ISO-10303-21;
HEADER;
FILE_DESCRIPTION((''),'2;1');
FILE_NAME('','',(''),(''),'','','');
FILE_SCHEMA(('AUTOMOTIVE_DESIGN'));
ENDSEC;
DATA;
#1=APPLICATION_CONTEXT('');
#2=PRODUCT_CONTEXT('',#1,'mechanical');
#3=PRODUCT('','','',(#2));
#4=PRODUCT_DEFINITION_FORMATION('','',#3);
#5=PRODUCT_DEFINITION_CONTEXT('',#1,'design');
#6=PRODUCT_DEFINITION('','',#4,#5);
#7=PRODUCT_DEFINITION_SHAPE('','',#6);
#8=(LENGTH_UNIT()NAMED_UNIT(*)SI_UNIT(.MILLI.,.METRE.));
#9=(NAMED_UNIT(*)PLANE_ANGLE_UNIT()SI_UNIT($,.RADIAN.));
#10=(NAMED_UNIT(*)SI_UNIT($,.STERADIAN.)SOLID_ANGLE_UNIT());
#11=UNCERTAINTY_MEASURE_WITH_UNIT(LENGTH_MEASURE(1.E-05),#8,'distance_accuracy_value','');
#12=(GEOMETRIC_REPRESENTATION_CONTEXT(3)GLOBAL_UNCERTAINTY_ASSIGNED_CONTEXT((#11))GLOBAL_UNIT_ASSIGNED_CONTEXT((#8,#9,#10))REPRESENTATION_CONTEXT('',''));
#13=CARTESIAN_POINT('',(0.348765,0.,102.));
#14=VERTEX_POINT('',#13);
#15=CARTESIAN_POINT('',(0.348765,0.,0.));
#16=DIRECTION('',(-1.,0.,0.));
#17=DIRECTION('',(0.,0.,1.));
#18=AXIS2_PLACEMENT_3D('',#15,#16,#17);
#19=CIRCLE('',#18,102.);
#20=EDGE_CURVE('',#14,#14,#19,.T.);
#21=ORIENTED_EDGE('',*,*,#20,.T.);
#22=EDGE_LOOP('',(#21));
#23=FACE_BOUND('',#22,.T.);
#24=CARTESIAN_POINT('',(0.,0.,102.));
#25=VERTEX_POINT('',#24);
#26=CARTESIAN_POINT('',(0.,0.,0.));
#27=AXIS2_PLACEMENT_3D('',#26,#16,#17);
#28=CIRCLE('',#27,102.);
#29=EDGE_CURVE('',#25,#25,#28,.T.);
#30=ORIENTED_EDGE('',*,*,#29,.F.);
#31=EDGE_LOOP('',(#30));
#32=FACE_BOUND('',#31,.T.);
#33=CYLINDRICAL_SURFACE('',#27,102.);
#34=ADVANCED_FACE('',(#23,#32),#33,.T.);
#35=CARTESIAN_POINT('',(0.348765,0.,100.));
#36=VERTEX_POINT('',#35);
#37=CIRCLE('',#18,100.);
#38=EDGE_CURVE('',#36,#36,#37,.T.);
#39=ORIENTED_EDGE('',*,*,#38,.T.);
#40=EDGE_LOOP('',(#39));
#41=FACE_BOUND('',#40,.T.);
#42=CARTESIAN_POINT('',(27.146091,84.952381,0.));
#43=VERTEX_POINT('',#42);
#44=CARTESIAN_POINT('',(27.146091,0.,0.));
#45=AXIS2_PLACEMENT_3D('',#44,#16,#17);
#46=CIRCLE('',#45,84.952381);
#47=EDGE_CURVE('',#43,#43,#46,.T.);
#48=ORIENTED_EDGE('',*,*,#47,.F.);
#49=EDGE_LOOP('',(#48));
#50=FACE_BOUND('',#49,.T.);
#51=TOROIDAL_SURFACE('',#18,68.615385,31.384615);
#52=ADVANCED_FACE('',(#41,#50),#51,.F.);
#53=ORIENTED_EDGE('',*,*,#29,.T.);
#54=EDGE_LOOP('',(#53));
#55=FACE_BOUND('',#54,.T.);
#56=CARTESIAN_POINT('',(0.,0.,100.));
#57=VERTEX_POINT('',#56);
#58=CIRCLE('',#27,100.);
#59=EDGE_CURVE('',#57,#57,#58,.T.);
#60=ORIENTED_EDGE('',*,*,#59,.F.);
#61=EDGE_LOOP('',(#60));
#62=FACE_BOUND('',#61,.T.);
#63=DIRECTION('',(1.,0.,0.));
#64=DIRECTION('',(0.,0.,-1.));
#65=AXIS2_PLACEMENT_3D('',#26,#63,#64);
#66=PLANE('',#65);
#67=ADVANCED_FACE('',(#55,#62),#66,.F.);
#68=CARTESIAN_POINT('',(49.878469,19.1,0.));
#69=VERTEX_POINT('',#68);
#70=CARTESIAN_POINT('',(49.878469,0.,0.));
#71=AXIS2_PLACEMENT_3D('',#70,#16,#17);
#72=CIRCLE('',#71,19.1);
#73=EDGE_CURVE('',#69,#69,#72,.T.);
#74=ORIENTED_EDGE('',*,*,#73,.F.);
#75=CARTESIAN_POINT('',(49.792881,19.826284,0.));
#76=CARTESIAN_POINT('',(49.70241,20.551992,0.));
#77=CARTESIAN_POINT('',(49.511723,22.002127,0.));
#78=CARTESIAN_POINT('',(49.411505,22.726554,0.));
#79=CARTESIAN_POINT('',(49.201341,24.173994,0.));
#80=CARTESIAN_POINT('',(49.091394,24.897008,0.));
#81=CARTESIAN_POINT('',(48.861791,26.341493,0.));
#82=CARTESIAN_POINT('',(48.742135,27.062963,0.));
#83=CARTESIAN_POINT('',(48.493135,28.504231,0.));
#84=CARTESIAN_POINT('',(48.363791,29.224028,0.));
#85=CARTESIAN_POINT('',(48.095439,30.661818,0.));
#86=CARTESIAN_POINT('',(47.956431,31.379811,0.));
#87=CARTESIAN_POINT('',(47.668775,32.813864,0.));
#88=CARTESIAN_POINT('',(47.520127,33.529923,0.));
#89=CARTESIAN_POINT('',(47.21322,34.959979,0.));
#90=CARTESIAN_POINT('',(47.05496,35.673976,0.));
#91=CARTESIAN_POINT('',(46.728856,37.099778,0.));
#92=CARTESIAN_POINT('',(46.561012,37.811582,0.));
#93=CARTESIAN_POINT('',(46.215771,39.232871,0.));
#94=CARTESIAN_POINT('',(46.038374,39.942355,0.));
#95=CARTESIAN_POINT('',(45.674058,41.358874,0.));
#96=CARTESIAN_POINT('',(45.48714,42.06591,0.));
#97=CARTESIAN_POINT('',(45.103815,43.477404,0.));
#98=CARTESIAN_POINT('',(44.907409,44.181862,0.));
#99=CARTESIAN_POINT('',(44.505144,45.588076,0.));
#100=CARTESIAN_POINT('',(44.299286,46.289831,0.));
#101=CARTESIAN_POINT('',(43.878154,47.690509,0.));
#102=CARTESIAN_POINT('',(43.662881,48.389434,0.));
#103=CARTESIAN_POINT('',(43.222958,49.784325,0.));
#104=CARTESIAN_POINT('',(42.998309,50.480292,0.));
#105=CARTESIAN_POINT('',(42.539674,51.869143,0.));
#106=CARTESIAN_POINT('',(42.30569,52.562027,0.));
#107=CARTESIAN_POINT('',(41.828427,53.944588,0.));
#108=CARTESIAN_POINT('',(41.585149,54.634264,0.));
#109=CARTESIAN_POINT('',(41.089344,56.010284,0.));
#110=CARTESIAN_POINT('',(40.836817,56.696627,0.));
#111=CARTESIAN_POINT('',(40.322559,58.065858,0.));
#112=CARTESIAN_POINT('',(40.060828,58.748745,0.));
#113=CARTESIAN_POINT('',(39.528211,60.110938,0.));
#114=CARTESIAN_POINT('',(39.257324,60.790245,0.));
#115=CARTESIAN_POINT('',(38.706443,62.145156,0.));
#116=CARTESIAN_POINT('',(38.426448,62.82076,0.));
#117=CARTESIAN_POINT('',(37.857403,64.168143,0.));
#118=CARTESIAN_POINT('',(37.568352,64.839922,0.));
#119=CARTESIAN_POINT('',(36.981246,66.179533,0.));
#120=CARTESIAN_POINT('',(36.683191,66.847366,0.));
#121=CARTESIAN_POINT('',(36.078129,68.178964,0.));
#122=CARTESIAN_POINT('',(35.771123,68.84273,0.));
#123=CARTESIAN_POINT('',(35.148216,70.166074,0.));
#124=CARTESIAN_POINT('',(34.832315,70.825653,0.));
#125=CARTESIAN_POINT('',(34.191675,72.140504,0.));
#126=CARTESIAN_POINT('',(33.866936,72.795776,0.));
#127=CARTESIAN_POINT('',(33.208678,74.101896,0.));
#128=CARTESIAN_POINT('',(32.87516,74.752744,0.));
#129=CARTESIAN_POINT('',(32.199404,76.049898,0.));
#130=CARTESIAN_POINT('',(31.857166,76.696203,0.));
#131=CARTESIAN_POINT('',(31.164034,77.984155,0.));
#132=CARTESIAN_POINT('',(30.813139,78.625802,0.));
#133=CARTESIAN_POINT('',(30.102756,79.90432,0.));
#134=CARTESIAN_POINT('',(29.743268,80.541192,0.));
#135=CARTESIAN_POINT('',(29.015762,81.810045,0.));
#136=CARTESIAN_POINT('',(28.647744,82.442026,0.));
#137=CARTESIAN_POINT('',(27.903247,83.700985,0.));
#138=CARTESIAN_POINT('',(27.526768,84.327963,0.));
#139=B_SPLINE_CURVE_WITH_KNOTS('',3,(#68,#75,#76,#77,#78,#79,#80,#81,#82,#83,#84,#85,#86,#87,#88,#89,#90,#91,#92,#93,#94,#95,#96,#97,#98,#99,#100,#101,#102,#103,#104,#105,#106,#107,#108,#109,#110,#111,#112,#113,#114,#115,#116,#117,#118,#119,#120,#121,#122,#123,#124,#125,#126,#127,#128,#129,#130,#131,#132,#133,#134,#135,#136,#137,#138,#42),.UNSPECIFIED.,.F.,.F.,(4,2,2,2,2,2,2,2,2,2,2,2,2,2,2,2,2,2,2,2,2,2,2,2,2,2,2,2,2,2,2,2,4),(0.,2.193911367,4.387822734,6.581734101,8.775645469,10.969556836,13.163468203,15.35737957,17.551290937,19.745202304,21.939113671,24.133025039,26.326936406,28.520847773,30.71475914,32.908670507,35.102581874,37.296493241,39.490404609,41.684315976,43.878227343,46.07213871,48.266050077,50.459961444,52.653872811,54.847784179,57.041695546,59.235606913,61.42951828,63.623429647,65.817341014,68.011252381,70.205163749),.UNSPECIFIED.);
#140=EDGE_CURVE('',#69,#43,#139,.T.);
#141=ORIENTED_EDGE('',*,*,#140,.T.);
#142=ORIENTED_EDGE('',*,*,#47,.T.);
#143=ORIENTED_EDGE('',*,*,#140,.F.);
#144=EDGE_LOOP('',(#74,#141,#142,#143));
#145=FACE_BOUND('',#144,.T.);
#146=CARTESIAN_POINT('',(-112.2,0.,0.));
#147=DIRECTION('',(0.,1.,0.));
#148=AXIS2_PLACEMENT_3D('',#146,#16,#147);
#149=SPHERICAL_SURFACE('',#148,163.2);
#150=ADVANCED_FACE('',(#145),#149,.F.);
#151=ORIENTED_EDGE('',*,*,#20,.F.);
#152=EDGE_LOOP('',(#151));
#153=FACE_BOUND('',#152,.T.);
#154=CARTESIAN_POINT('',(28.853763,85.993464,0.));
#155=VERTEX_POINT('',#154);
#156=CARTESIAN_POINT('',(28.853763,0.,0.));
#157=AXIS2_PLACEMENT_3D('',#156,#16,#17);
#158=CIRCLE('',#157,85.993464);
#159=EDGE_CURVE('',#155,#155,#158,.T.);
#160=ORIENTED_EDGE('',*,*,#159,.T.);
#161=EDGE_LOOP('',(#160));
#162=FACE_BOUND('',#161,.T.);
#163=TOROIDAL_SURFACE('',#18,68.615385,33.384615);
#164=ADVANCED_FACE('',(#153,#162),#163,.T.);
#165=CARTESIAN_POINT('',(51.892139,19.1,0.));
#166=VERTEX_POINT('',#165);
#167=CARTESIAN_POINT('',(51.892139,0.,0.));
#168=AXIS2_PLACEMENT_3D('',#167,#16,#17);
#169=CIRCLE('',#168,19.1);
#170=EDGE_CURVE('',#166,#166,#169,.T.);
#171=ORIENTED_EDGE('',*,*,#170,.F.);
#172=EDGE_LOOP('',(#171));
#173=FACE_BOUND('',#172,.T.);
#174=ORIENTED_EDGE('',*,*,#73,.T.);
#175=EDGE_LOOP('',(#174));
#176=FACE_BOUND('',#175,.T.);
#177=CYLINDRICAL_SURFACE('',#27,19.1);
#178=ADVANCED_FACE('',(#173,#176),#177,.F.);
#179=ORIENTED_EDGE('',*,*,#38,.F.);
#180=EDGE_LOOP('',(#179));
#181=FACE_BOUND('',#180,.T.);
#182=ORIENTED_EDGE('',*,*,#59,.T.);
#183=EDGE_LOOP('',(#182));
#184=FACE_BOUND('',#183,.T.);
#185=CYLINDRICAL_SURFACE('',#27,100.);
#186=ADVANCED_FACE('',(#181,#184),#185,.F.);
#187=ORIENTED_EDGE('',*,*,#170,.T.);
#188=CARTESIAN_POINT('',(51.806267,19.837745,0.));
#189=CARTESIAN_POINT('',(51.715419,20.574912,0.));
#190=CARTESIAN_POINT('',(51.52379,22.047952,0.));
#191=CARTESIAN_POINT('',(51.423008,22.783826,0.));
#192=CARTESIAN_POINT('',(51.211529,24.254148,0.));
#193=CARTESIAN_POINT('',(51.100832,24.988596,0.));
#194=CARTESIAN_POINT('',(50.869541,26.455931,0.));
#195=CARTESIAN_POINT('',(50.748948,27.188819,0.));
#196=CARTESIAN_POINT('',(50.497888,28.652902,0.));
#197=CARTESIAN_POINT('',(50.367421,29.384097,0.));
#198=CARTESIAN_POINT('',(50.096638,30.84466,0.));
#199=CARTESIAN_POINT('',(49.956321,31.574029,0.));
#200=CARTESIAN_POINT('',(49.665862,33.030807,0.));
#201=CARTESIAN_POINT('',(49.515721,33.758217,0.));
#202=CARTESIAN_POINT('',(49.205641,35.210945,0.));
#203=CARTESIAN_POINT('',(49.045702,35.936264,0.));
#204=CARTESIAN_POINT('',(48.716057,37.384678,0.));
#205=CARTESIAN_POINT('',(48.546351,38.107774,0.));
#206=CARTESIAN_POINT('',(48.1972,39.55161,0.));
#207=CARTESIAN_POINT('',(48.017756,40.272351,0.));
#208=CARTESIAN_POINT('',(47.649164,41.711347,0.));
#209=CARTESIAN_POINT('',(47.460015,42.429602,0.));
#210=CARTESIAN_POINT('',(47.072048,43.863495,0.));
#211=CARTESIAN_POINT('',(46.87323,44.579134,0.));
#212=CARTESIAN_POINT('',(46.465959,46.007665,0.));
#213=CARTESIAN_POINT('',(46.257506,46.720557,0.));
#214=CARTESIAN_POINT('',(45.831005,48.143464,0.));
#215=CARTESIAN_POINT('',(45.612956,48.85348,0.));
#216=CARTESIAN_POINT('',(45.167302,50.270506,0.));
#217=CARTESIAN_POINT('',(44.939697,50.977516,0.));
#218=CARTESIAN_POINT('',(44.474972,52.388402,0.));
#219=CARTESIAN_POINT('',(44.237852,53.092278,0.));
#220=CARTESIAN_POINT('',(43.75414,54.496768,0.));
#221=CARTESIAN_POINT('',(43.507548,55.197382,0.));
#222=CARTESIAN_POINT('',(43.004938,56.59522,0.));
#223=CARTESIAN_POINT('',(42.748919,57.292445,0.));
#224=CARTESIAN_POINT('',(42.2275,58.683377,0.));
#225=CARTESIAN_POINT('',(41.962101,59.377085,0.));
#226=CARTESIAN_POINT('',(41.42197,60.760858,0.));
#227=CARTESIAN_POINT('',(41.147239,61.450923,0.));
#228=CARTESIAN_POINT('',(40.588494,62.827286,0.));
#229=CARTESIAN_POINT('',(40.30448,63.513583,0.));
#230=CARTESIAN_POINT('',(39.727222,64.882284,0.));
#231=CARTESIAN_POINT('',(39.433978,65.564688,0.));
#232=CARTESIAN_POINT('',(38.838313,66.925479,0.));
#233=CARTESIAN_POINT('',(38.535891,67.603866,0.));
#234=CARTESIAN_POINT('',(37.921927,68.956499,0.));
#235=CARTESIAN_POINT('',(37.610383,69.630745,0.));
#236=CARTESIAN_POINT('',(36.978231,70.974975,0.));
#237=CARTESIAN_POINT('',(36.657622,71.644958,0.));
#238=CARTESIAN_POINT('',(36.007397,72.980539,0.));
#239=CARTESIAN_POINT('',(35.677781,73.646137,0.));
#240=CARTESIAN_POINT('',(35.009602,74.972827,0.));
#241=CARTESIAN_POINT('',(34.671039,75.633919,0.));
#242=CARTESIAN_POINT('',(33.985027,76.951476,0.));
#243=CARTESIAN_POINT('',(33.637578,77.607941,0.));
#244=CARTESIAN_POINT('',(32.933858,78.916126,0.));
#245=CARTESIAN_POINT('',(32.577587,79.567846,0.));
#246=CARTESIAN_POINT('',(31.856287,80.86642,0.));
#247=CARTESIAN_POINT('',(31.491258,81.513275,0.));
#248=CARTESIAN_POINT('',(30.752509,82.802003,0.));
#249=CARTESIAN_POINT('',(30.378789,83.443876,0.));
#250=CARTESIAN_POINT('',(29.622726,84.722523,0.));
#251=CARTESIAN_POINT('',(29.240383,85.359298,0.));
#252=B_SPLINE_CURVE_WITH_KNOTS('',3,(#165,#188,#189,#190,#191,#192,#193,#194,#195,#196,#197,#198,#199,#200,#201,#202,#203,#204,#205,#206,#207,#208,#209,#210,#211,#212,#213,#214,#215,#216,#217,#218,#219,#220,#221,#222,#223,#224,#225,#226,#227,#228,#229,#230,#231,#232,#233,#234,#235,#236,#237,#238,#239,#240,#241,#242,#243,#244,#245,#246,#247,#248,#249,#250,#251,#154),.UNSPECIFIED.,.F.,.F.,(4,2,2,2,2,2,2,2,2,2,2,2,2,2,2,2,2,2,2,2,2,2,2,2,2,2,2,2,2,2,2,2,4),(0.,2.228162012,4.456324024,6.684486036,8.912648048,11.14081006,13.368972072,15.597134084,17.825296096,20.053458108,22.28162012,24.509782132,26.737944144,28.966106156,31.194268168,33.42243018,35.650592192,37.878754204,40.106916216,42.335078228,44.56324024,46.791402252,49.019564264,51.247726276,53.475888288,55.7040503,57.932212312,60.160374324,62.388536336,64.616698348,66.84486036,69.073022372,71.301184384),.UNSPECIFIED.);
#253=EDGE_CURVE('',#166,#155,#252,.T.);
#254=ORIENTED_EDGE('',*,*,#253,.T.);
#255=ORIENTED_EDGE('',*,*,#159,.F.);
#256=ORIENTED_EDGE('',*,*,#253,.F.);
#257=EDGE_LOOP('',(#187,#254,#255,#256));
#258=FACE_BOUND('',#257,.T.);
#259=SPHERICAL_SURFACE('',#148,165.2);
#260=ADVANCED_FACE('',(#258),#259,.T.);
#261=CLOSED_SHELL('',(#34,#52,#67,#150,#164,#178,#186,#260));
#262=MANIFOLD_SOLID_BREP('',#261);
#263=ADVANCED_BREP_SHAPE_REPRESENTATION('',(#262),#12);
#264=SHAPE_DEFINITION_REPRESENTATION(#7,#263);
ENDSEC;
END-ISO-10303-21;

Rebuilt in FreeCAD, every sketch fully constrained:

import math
import FreeCAD as App
import Part
import Sketcher

doc = App.newDocument("Part")
params = doc.addObject("Spreadsheet::Sheet", "Params")
for row, (alias, value) in enumerate([
    ("sketch1_radius", "163.2 mm"),
    ("sketch1_radius2", "165.2 mm"),
    ("revolution_angle", "360 deg"),
], start=1):
    params.set(f"A{row}", alias)
    params.set(f"B{row}", "=" + value)
    params.setAlias(f"B{row}", alias)

body = doc.addObject("PartDesign::Body", "Body")

# Sketch on XY plane
sketch1 = body.newObject("Sketcher::SketchObject", "Sketch")
sketch1.AttachmentSupport = (doc.getObject("XY_Plane"), [""])
sketch1.MapMode = "FlatFace"
sketch1.addGeometry(Part.LineSegment(App.Vector(0.35, 102, 0), App.Vector(0, 102, 0)), False)
sketch1.addGeometry(Part.LineSegment(App.Vector(0, 102, 0), App.Vector(0, 100, 0)), False)
sketch1.addGeometry(Part.LineSegment(App.Vector(0, 100, 0), App.Vector(0.35, 100, 0)), False)
sketch1.addGeometry(Part.ArcOfCircle(Part.Circle(App.Vector(0.35, 68.62, 0), App.Vector(0, 0, 1), 31.38), math.radians(31), math.radians(90)), False)
sketch1.addGeometry(Part.ArcOfCircle(Part.Circle(App.Vector(-112.2, 0, 0), App.Vector(0, 0, 1), 163.2), math.radians(7), math.radians(31)), False)
sketch1.addGeometry(Part.LineSegment(App.Vector(49.88, 19.1, 0), App.Vector(51.89, 19.1, 0)), False)
sketch1.addGeometry(Part.ArcOfCircle(Part.Circle(App.Vector(-112.2, 0, 0), App.Vector(0, 0, 1), 165.2), math.radians(7), math.radians(31)), False)
sketch1.addGeometry(Part.ArcOfCircle(Part.Circle(App.Vector(0.35, 68.62, 0), App.Vector(0, 0, 1), 33.38), math.radians(31), math.radians(90)), False)
sketch1.addConstraint(Sketcher.Constraint("Coincident", 0, 2, 1, 1))
sketch1.addConstraint(Sketcher.Constraint("Coincident", 1, 2, 2, 1))
sketch1.addConstraint(Sketcher.Constraint("Tangent", 2, 2, 3, 2))
sketch1.addConstraint(Sketcher.Constraint("Tangent", 3, 1, 4, 2))
sketch1.addConstraint(Sketcher.Constraint("Coincident", 4, 1, 5, 1))
sketch1.addConstraint(Sketcher.Constraint("Coincident", 5, 2, 6, 1))
sketch1.addConstraint(Sketcher.Constraint("Tangent", 6, 2, 7, 1))
sketch1.addConstraint(Sketcher.Constraint("Tangent", 7, 2, 0, 1))
sketch1.addConstraint(Sketcher.Constraint("Horizontal", 0))
sketch1.addConstraint(Sketcher.Constraint("Vertical", 1))
sketch1.addConstraint(Sketcher.Constraint("Horizontal", 2))
sketch1.addConstraint(Sketcher.Constraint("Horizontal", 5))
sketch1.addConstraint(Sketcher.Constraint("Coincident", 6, 3, 4, 3))
sketch1.addConstraint(Sketcher.Constraint("Coincident", 7, 3, 3, 3))
sketch1.addConstraint(Sketcher.Constraint("PointOnObject", 4, 3, -1))
sketch1.addConstraint(Sketcher.Constraint("PointOnObject", 0, 2, -2))
sketch1.addConstraint(Sketcher.Constraint("Radius", 4, 163.2))
sketch1.addConstraint(Sketcher.Constraint("Radius", 6, 165.2))
sketch1.addConstraint(Sketcher.Constraint("DistanceY", -1, 1, 0, 2, 102.0))
sketch1.addConstraint(Sketcher.Constraint("DistanceX", 4, 3, -1, 1, 112.2))
sketch1.addConstraint(Sketcher.Constraint("DistanceY", -1, 1, 4, 1, 19.1))
sketch1.addConstraint(Sketcher.Constraint("Radius", 3, 31.384615))
sketch1.setExpression("Constraints[16]", "Params.sketch1_radius")
sketch1.setExpression("Constraints[17]", "Params.sketch1_radius2")
revolution = body.newObject("PartDesign::Revolution", "Revolution")
revolution.Profile = sketch1
revolution.ReferenceAxis = (sketch1, ["H_Axis"])
revolution.setExpression("Angle", "Params.revolution_angle")

doc.recompute()
